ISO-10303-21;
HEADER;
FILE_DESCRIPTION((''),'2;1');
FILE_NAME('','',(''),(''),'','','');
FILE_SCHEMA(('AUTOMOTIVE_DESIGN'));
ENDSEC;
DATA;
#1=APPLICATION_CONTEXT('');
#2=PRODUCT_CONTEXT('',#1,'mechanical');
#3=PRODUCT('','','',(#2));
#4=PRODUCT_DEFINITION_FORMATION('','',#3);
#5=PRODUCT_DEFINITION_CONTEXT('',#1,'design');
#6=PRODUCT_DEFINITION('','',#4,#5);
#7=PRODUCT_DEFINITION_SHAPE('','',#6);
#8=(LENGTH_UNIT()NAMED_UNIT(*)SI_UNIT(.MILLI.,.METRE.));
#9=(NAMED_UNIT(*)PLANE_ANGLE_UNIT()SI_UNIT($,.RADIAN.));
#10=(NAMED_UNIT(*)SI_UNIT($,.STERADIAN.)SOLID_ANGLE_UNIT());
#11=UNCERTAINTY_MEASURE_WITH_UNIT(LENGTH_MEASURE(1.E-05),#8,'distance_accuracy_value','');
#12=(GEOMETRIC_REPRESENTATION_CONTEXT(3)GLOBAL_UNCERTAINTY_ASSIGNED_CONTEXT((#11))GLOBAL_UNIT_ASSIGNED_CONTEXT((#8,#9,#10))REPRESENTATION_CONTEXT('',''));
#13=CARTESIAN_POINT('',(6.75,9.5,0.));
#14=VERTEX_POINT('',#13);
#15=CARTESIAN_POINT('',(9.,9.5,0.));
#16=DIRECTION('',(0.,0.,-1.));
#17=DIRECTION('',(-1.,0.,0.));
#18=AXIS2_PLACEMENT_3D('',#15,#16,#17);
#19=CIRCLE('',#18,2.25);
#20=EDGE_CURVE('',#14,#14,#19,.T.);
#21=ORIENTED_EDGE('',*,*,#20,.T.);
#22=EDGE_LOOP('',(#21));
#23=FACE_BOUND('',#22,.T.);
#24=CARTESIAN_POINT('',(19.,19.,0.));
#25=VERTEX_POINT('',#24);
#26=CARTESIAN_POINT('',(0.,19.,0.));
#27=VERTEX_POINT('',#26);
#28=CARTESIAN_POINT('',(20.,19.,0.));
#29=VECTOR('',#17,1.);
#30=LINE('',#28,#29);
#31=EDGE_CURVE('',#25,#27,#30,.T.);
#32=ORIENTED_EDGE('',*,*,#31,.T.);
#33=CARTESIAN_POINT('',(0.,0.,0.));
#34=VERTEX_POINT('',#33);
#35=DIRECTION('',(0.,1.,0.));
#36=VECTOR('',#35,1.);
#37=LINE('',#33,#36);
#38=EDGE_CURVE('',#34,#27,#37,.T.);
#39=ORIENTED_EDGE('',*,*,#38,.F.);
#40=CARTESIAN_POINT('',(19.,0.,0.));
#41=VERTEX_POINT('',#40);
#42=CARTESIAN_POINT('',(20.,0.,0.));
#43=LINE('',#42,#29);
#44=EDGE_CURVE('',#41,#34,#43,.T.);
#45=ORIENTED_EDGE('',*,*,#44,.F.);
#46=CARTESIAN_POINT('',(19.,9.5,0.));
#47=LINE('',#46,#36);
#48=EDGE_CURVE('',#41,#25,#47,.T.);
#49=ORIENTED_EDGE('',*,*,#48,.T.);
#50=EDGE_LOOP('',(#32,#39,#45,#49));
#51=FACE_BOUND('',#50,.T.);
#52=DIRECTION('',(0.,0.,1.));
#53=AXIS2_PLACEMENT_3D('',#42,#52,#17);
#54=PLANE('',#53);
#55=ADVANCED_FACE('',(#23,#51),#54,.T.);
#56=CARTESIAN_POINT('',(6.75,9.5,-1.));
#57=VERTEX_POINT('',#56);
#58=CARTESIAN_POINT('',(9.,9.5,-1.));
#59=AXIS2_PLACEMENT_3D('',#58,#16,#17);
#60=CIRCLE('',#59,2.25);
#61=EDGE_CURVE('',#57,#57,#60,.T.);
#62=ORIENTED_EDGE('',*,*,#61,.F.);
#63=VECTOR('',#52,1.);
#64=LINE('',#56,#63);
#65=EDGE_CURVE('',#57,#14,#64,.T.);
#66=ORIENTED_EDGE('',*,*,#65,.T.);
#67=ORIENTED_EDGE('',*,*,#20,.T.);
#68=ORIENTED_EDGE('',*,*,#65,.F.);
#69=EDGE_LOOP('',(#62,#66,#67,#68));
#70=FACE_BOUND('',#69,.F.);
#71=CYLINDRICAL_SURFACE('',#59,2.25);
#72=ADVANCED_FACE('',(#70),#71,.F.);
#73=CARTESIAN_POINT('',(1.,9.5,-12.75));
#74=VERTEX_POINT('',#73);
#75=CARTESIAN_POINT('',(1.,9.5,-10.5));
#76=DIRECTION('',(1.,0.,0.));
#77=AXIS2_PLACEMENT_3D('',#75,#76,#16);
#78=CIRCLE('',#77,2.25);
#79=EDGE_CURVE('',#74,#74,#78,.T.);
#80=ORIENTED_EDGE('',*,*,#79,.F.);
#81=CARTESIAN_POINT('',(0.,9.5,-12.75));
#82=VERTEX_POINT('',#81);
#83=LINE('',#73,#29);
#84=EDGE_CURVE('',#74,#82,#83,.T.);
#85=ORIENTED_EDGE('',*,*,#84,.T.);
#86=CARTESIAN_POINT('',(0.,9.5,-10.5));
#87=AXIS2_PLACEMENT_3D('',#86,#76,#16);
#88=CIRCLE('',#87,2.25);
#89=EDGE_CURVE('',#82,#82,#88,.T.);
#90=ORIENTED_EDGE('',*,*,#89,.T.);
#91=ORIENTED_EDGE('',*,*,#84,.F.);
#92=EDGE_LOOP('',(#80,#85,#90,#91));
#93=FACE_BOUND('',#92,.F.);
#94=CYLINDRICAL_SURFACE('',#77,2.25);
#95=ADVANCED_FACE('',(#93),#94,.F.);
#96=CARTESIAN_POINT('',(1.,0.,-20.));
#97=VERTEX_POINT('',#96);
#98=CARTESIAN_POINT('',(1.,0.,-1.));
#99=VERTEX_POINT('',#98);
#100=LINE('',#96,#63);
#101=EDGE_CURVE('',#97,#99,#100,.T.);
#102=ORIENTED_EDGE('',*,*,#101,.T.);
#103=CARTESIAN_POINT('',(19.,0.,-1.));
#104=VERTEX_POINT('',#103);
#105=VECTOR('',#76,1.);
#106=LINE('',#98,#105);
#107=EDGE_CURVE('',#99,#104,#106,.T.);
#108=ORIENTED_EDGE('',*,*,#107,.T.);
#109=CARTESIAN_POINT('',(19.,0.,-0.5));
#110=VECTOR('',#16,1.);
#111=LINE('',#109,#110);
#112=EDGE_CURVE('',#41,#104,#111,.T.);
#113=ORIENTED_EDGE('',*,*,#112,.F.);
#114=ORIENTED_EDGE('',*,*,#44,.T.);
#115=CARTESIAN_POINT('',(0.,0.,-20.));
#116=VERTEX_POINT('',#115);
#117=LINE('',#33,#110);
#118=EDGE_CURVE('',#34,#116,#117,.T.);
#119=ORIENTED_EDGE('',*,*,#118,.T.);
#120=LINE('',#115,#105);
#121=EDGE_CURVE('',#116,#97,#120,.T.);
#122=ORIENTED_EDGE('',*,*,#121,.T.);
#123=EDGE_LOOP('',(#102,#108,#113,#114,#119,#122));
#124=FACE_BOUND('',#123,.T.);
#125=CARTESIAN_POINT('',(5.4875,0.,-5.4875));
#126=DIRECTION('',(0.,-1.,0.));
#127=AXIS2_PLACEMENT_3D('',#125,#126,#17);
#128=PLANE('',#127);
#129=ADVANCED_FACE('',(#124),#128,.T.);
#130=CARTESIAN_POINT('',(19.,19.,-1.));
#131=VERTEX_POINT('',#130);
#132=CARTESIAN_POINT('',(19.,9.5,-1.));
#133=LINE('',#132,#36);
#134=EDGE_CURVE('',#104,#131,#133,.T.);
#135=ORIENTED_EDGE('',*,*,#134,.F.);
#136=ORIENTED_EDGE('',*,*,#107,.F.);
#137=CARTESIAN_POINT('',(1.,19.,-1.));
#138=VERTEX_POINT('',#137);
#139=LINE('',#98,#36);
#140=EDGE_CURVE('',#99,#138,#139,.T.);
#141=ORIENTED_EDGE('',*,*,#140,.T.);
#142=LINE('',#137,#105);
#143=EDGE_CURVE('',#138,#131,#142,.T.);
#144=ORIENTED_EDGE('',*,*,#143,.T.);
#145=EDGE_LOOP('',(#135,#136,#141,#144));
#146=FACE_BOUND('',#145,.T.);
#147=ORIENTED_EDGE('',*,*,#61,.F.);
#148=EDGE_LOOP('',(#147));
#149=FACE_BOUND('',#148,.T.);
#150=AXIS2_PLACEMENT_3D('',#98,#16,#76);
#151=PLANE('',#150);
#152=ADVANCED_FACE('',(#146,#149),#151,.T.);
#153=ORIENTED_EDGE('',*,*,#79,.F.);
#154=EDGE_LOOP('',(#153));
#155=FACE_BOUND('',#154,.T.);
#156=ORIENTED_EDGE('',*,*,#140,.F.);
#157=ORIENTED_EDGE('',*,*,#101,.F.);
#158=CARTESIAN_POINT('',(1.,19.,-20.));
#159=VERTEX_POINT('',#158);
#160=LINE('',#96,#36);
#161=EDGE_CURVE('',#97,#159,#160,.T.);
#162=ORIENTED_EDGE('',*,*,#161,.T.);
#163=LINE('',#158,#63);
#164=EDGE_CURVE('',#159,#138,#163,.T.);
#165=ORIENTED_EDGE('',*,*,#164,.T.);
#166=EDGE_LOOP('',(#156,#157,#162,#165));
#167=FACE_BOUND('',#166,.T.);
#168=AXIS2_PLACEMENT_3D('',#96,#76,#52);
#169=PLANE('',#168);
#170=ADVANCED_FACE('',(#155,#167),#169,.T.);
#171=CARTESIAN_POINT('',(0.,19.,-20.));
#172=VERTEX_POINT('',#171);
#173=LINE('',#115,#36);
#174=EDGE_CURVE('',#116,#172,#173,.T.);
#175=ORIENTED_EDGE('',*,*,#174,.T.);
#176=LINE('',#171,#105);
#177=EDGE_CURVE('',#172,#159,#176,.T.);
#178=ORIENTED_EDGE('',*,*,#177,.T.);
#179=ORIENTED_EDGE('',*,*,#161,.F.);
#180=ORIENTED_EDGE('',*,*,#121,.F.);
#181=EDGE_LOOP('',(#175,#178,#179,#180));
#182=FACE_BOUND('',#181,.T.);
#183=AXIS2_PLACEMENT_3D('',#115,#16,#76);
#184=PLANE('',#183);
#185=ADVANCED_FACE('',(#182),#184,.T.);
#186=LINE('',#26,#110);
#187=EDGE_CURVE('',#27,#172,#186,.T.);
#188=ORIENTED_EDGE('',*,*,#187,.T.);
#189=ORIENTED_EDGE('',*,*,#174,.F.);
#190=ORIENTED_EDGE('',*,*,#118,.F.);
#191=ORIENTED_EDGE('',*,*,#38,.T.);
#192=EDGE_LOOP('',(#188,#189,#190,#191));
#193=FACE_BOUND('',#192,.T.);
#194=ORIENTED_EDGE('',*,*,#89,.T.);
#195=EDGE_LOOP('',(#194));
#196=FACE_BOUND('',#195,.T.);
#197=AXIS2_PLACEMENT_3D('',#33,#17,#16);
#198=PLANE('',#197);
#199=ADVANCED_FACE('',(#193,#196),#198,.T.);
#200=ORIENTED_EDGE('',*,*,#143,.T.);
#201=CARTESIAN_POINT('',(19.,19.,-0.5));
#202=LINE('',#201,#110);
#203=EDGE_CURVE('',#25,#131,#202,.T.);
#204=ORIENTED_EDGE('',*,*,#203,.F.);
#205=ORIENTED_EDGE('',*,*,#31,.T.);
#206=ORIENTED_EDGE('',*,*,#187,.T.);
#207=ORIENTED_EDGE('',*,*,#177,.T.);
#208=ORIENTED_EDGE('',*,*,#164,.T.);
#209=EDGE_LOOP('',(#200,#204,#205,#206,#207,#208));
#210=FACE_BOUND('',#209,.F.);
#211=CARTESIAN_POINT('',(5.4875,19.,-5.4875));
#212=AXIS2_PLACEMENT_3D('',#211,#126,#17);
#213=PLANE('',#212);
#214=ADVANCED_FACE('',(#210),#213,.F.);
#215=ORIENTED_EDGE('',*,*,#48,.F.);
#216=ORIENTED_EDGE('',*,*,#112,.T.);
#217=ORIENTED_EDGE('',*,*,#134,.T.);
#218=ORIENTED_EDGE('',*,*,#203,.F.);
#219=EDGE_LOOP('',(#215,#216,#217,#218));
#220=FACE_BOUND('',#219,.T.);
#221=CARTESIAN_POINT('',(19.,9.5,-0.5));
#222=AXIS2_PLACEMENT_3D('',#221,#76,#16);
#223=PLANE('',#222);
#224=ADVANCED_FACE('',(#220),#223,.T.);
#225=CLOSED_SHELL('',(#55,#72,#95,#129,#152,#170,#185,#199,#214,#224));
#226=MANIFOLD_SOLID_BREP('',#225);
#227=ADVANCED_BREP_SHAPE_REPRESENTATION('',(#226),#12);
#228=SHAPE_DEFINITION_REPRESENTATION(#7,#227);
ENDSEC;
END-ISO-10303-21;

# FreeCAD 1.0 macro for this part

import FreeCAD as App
import Part
import Sketcher
Q = App.Units.Quantity

doc = App.newDocument("Part")
body = doc.addObject("PartDesign::Body", "Body")

# Sketch on XZ plane
sketch1 = body.newObject("Sketcher::SketchObject", "Sketch")
sketch1.AttachmentSupport = (doc.getObject("XZ_Plane"), [""])
sketch1.MapMode = "FlatFace"
sketch1.addGeometry([
    Part.LineSegment(App.Vector(0, -20, 0), App.Vector(0, 0, 0)),  # 0
    Part.LineSegment(App.Vector(0, 0, 0), App.Vector(20, 0, 0)),  # 1
    Part.LineSegment(App.Vector(20, 0, 0), App.Vector(20, -1, 0)),  # 2
    Part.LineSegment(App.Vector(20, -1, 0), App.Vector(1, -1, 0)),  # 3
    Part.LineSegment(App.Vector(1, -1, 0), App.Vector(1, -20, 0)),  # 4
    Part.LineSegment(App.Vector(1, -20, 0), App.Vector(0, -20, 0)),  # 5
], False)
sketch1.addConstraint([
    Sketcher.Constraint("Coincident", 0, 2, 1, 1),
    Sketcher.Constraint("Coincident", 1, 2, 2, 1),
    Sketcher.Constraint("Coincident", 2, 2, 3, 1),
    Sketcher.Constraint("Coincident", 3, 2, 4, 1),
    Sketcher.Constraint("Coincident", 4, 2, 5, 1),
    Sketcher.Constraint("Coincident", 5, 2, 0, 1),
    Sketcher.Constraint("Vertical", 0),
    Sketcher.Constraint("Horizontal", 1),
    Sketcher.Constraint("Vertical", 2),
    Sketcher.Constraint("Horizontal", 3),
    Sketcher.Constraint("Vertical", 4),
    Sketcher.Constraint("Horizontal", 5),
    Sketcher.Constraint("Coincident", 0, 2, -1, 1),
    Sketcher.Constraint("Equal", 1, 0),
    Sketcher.Constraint("Equal", 5, 2),
    Sketcher.Constraint("DistanceX", 1, 1, 1, 2, Q("20 mm")),
    Sketcher.Constraint("DistanceX", 3, 2, 3, 1, Q("19 mm")),
])
pad1 = body.newObject("PartDesign::Pad", "Pad")
pad1.Profile = sketch1
pad1.Length = 19
pad1.Reversed = True

# Sketch on YZ plane
sketch2 = body.newObject("Sketcher::SketchObject", "Sketch001")
sketch2.AttachmentSupport = (doc.getObject("YZ_Plane"), [""])
sketch2.MapMode = "FlatFace"
sketch2.AttachmentOffset = App.Placement(App.Vector(0, 0, 20), App.Rotation())
sketch2.addGeometry([
    Part.LineSegment(App.Vector(19, 0, 0), App.Vector(0, 0, 0)),
    Part.LineSegment(App.Vector(0, 0, 0), App.Vector(0, -1, 0)),
    Part.LineSegment(App.Vector(0, -1, 0), App.Vector(19, -1, 0)),
    Part.LineSegment(App.Vector(19, -1, 0), App.Vector(19, 0, 0)),
], False)
sketch2.addConstraint([
    Sketcher.Constraint("Coincident", 0, 2, 1, 1),
    Sketcher.Constraint("Coincident", 1, 2, 2, 1),
    Sketcher.Constraint("Coincident", 2, 2, 3, 1),
    Sketcher.Constraint("Coincident", 3, 2, 0, 1),
    Sketcher.Constraint("Horizontal", 0),
    Sketcher.Constraint("Vertical", 1),
    Sketcher.Constraint("Horizontal", 2),
    Sketcher.Constraint("Vertical", 3),
    Sketcher.Constraint("Coincident", 0, 2, -1, 1),
    Sketcher.Constraint("DistanceX", 0, 2, 0, 1, Q("19 mm")),
    Sketcher.Constraint("DistanceY", 1, 2, 1, 1, Q("1 mm")),
])
pocket1 = body.newObject("PartDesign::Pocket", "Pocket")
pocket1.Profile = sketch2
pocket1.Length = 1

# Sketch on YZ plane
sketch3 = body.newObject("Sketcher::SketchObject", "Sketch002")
sketch3.AttachmentSupport = (doc.getObject("YZ_Plane"), [""])
sketch3.MapMode = "FlatFace"
sketch3.AttachmentOffset = App.Placement(App.Vector(0, 0, 1), App.Rotation())
sketch3.addGeometry(Part.Circle(App.Vector(9.5, -10.5, 0), App.Vector(0, 0, 1), 2.2), False)
sketch3.addConstraint([
    Sketcher.Constraint("Diameter", 0, Q("4.5 mm")),
    Sketcher.Constraint("DistanceX", -1, 1, 0, 3, Q("9.5 mm")),
    Sketcher.Constraint("DistanceY", 0, 3, -1, 1, Q("10.5 mm")),
])
pocket2 = body.newObject("PartDesign::Pocket", "Pocket001")
pocket2.Profile = sketch3
pocket2.Type = "ThroughAll"

# Sketch on XY plane
sketch4 = body.newObject("Sketcher::SketchObject", "Sketch003")
sketch4.AttachmentSupport = (doc.getObject("XY_Plane"), [""])
sketch4.MapMode = "FlatFace"
sketch4.AttachmentOffset = App.Placement(App.Vector(0, 0, -1), App.Rotation())
sketch4.addGeometry(Part.Circle(App.Vector(9, 9.5, 0), App.Vector(0, 0, 1), 2.2), False)
sketch4.addConstraint([
    Sketcher.Constraint("Diameter", 0, Q("4.5 mm")),
    Sketcher.Constraint("DistanceX", -1, 1, 0, 3, Q("9 mm")),
    Sketcher.Constraint("DistanceY", -1, 1, 0, 3, Q("9.5 mm")),
])
pocket3 = body.newObject("PartDesign::Pocket", "Pocket002")
pocket3.Profile = sketch4
pocket3.Type = "ThroughAll"
pocket3.Reversed = True

doc.recompute()
